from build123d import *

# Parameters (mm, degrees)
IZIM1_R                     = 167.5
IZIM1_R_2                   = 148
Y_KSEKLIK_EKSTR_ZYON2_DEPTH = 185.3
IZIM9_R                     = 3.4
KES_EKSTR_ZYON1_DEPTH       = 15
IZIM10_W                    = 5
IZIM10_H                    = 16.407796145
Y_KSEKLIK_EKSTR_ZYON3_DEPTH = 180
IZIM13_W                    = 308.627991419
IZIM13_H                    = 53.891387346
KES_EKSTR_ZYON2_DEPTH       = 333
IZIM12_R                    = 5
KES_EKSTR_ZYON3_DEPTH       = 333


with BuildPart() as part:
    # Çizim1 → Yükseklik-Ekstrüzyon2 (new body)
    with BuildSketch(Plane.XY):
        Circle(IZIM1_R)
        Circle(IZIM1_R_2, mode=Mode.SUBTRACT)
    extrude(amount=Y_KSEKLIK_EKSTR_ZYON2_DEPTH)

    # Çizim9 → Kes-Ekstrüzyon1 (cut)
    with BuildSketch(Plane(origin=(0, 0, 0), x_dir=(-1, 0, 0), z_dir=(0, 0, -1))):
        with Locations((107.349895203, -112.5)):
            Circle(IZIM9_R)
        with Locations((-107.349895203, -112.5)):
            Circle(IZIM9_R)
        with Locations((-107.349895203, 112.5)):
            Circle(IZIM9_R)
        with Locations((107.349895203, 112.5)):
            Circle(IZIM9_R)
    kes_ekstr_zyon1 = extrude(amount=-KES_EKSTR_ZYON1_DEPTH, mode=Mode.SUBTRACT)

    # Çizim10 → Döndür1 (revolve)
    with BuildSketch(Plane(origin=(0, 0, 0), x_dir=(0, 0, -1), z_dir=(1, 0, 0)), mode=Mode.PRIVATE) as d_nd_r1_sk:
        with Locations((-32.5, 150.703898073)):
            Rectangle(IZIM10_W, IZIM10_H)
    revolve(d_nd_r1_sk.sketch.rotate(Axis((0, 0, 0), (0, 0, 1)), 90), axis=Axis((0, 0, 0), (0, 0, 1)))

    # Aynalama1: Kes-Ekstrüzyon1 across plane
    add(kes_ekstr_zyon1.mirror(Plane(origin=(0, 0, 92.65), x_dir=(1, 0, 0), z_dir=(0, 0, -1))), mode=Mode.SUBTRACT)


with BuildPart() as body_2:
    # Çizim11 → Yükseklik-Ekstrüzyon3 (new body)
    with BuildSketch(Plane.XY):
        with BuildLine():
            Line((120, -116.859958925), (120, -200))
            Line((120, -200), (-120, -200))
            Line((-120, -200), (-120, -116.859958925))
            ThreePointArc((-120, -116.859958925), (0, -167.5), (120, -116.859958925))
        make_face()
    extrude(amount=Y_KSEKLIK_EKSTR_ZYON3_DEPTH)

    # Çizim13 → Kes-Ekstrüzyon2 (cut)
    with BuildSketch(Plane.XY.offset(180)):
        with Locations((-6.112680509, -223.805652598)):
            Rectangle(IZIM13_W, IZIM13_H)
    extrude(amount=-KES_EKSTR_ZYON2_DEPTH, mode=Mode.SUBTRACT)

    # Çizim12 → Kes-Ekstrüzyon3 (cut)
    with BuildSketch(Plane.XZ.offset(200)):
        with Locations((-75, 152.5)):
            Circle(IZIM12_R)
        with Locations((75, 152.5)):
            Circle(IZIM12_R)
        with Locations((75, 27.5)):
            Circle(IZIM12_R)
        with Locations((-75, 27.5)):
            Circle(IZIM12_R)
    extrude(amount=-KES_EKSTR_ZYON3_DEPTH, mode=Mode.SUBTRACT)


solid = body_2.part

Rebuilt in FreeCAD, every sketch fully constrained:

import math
import FreeCAD as App
import Part
import Sketcher

V = App.Vector
Q = App.Units.Quantity

doc = App.newDocument("Part")
body = doc.addObject("PartDesign::Body", "Body")

# Sketch on XY plane
sketch1 = doc.addObject("Sketcher::SketchObject", "Sketch")
body.addObject(sketch1)
sketch1.AttachmentSupport = (doc.XY_Plane, [""])
sketch1.MapMode = "FlatFace"
sketch1.addGeometry([
    Part.Circle(V(0, 0, 0), V(0, 0, 1), 168),
    Part.Circle(V(0, 0, 0), V(0, 0, 1), 148),
], False)
sketch1.addConstraint([
    Sketcher.Constraint("Coincident", 0, 3, -1, 1),
    Sketcher.Constraint("Coincident", 1, 3, -1, 1),
    Sketcher.Constraint("Diameter", 0, Q("335 mm")),
    Sketcher.Constraint("Diameter", 1, Q("296 mm")),
])
pad1 = doc.addObject("PartDesign::Pad", "Pad")
body.addObject(pad1)
pad1.Profile = sketch1
pad1.Length = 185.3

# Sketch on XY plane
sketch2 = doc.addObject("Sketcher::SketchObject", "Sketch001")
body.addObject(sketch2)
sketch2.AttachmentSupport = (doc.XY_Plane, [""])
sketch2.MapMode = "FlatFace"
sketch2.addGeometry([
    Part.Circle(V(-107.3, -112.5, 0), V(0, 0, 1), 3.4),
    Part.Circle(V(107.3, -112.5, 0), V(0, 0, 1), 3.4),
    Part.Circle(V(107.3, 112.5, 0), V(0, 0, 1), 3.4),
    Part.Circle(V(-107.3, 112.5, 0), V(0, 0, 1), 3.4),
], False)
sketch2.addConstraint([
    Sketcher.Constraint("Equal", 0, 1),
    Sketcher.Constraint("Equal", 1, 2),
    Sketcher.Constraint("Equal", 2, 3),
    Sketcher.Constraint("Symmetric", 0, 3, 2, 3, -1, 1),
    Sketcher.Constraint("Symmetric", 1, 3, 3, 3, -1, 1),
    Sketcher.Constraint("Symmetric", 0, 3, 1, 3, -2),
    Sketcher.Constraint("Diameter", 0, Q("6.8 mm")),
    Sketcher.Constraint("DistanceY", 1, 3, 2, 3, Q("225 mm")),
    Sketcher.Constraint("DistanceX", 0, 3, 1, 3, Q("214.69979 mm")),
])
pocket1 = doc.addObject("PartDesign::Pocket", "Pocket")
body.addObject(pocket1)
pocket1.Profile = sketch2
pocket1.Length = 15
pocket1.Reversed = True

# Sketch on YZ plane
sketch3 = doc.addObject("Sketcher::SketchObject", "Sketch002")
body.addObject(sketch3)
sketch3.AttachmentSupport = (doc.YZ_Plane, [""])
sketch3.MapMode = "FlatFace"
sketch3.addGeometry([
    Part.LineSegment(V(159, 35, 0), V(142, 35, 0)),
    Part.LineSegment(V(142, 35, 0), V(142, 30, 0)),
    Part.LineSegment(V(142, 30, 0), V(159, 30, 0)),
    Part.LineSegment(V(159, 30, 0), V(159, 35, 0)),
], False)
sketch3.addConstraint([
    Sketcher.Constraint("Coincident", 0, 2, 1, 1),
    Sketcher.Constraint("Coincident", 1, 2, 2, 1),
    Sketcher.Constraint("Coincident", 2, 2, 3, 1),
    Sketcher.Constraint("Coincident", 3, 2, 0, 1),
    Sketcher.Constraint("Horizontal", 0),
    Sketcher.Constraint("Vertical", 1),
    Sketcher.Constraint("Horizontal", 2),
    Sketcher.Constraint("Vertical", 3),
    Sketcher.Constraint("DistanceY", 1, 2, 1, 1, Q("5 mm")),
    Sketcher.Constraint("DistanceY", -1, 1, 0, 2, Q("35 mm")),
    Sketcher.Constraint("DistanceX", -1, 1, 0, 2, Q("142.5 mm")),
    Sketcher.Constraint("DistanceX", 0, 2, 0, 1, Q("16.407796 mm")),
])
revolution = doc.addObject("PartDesign::Revolution", "Revolution")
body.addObject(revolution)
revolution.Profile = sketch3
revolution.ReferenceAxis = (sketch3, ["V_Axis"])
revolution.Angle = 360
doc.recompute()

datumplane = doc.addObject("PartDesign::Plane", "DatumPlane")
body.addObject(datumplane)
datumplane.AttachmentSupport = (doc.XY_Plane, [""])
datumplane.MapMode = "FlatFace"
datumplane.AttachmentOffset = App.Placement(V(0, 0, 92.65), App.Rotation())
mirrored = doc.addObject("PartDesign::Mirrored", "Mirrored")
body.addObject(mirrored)
mirrored.Originals = [pocket1]
mirrored.MirrorPlane = (datumplane, [""])
body.Tip = mirrored
body2 = doc.addObject("PartDesign::Body", "Body001")

# Sketch on XY plane
sketch4 = doc.addObject("Sketcher::SketchObject", "Sketch003")
body2.addObject(sketch4)
sketch4.AttachmentSupport = (doc.getObject("XY_Plane001"), [""])
sketch4.MapMode = "FlatFace"
sketch4.addGeometry([
    Part.LineSegment(V(120, -200, 0), V(120, -117, 0)),
    Part.ArcOfCircle(Part.Circle(V(0, 0, 0), V(0, 0, 1), 168), math.radians(-136), math.radians(-44)),
    Part.LineSegment(V(-120, -117, 0), V(-120, -200, 0)),
    Part.LineSegment(V(-120, -200, 0), V(120, -200, 0)),
], False)
sketch4.addConstraint([
    Sketcher.Constraint("Coincident", 0, 2, 1, 2),
    Sketcher.Constraint("Coincident", 1, 1, 2, 1),
    Sketcher.Constraint("Coincident", 2, 2, 3, 1),
    Sketcher.Constraint("Coincident", 3, 2, 0, 1),
    Sketcher.Constraint("Vertical", 0),
    Sketcher.Constraint("Vertical", 2),
    Sketcher.Constraint("Horizontal", 3),
    Sketcher.Constraint("Coincident", 1, 3, -1, 1),
    Sketcher.Constraint("Horizontal", 0, 2, 1, 1),
    Sketcher.Constraint("Radius", 1, Q("167.5 mm")),
    Sketcher.Constraint("DistanceX", 3, 1, 3, 2, Q("240 mm")),
    Sketcher.Constraint("DistanceY", 2, 2, -1, 1, Q("200 mm")),
])
pad2 = doc.addObject("PartDesign::Pad", "Pad001")
body2.addObject(pad2)
pad2.Profile = sketch4
pad2.Length = 180

# Sketch on XY plane
sketch5 = doc.addObject("Sketcher::SketchObject", "Sketch004")
body2.addObject(sketch5)
sketch5.AttachmentSupport = (doc.getObject("XY_Plane001"), [""])
sketch5.MapMode = "FlatFace"
sketch5.AttachmentOffset = App.Placement(V(0, 0, 180), App.Rotation())
sketch5.addGeometry([
    Part.LineSegment(V(-160, -197, 0), V(-160, -251, 0)),
    Part.LineSegment(V(-160, -251, 0), V(148, -251, 0)),
    Part.LineSegment(V(148, -251, 0), V(148, -197, 0)),
    Part.LineSegment(V(148, -197, 0), V(-160, -197, 0)),
], False)
sketch5.addConstraint([
    Sketcher.Constraint("Coincident", 0, 2, 1, 1),
    Sketcher.Constraint("Coincident", 1, 2, 2, 1),
    Sketcher.Constraint("Coincident", 2, 2, 3, 1),
    Sketcher.Constraint("Coincident", 3, 2, 0, 1),
    Sketcher.Constraint("Vertical", 0),
    Sketcher.Constraint("Horizontal", 1),
    Sketcher.Constraint("Vertical", 2),
    Sketcher.Constraint("Horizontal", 3),
    Sketcher.Constraint("DistanceX", 1, 1, 1, 2, Q("308.627991 mm")),
    Sketcher.Constraint("DistanceY", 0, 2, 0, 1, Q("53.891387 mm")),
    Sketcher.Constraint("DistanceY", 2, 2, -1, 1, Q("196.859959 mm")),
    Sketcher.Constraint("DistanceX", 0, 2, -1, 1, Q("160.426676 mm")),
])
pocket2 = doc.addObject("PartDesign::Pocket", "Pocket001")
body2.addObject(pocket2)
pocket2.Profile = sketch5
pocket2.Length = 333

# Sketch on XZ plane
sketch6 = doc.addObject("Sketcher::SketchObject", "Sketch005")
body2.addObject(sketch6)
sketch6.AttachmentSupport = (doc.getObject("XZ_Plane001"), [""])
sketch6.MapMode = "FlatFace"
sketch6.AttachmentOffset = App.Placement(V(0, 0, 200), App.Rotation())
sketch6.addGeometry([
    Part.Circle(V(-75, 152, 0), V(0, 0, 1), 5),
    Part.Circle(V(75, 152, 0), V(0, 0, 1), 5),
    Part.Circle(V(75, 28, 0), V(0, 0, 1), 5),
    Part.Circle(V(-75, 28, 0), V(0, 0, 1), 5),
], False)
sketch6.addConstraint([
    Sketcher.Constraint("Equal", 0, 1),
    Sketcher.Constraint("Equal", 1, 2),
    Sketcher.Constraint("Equal", 2, 3),
    Sketcher.Constraint("Symmetric", 0, 3, 1, 3, -2),
    Sketcher.Constraint("Symmetric", 2, 3, 3, 3, -2),
    Sketcher.Constraint("Vertical", 1, 3, 2, 3),
    Sketcher.Constraint("Diameter", 0, Q("10 mm")),
    Sketcher.Constraint("DistanceX", 0, 3, -1, 1, Q("75 mm")),
    Sketcher.Constraint("DistanceY", 2, 3, 1, 3, Q("125 mm")),
    Sketcher.Constraint("DistanceY", -1, 1, 0, 3, Q("152.5 mm")),
])
pocket3 = doc.addObject("PartDesign::Pocket", "Pocket002")
body2.addObject(pocket3)
pocket3.Profile = sketch6
pocket3.Length = 333
body.Visibility = False

doc.recompute()
